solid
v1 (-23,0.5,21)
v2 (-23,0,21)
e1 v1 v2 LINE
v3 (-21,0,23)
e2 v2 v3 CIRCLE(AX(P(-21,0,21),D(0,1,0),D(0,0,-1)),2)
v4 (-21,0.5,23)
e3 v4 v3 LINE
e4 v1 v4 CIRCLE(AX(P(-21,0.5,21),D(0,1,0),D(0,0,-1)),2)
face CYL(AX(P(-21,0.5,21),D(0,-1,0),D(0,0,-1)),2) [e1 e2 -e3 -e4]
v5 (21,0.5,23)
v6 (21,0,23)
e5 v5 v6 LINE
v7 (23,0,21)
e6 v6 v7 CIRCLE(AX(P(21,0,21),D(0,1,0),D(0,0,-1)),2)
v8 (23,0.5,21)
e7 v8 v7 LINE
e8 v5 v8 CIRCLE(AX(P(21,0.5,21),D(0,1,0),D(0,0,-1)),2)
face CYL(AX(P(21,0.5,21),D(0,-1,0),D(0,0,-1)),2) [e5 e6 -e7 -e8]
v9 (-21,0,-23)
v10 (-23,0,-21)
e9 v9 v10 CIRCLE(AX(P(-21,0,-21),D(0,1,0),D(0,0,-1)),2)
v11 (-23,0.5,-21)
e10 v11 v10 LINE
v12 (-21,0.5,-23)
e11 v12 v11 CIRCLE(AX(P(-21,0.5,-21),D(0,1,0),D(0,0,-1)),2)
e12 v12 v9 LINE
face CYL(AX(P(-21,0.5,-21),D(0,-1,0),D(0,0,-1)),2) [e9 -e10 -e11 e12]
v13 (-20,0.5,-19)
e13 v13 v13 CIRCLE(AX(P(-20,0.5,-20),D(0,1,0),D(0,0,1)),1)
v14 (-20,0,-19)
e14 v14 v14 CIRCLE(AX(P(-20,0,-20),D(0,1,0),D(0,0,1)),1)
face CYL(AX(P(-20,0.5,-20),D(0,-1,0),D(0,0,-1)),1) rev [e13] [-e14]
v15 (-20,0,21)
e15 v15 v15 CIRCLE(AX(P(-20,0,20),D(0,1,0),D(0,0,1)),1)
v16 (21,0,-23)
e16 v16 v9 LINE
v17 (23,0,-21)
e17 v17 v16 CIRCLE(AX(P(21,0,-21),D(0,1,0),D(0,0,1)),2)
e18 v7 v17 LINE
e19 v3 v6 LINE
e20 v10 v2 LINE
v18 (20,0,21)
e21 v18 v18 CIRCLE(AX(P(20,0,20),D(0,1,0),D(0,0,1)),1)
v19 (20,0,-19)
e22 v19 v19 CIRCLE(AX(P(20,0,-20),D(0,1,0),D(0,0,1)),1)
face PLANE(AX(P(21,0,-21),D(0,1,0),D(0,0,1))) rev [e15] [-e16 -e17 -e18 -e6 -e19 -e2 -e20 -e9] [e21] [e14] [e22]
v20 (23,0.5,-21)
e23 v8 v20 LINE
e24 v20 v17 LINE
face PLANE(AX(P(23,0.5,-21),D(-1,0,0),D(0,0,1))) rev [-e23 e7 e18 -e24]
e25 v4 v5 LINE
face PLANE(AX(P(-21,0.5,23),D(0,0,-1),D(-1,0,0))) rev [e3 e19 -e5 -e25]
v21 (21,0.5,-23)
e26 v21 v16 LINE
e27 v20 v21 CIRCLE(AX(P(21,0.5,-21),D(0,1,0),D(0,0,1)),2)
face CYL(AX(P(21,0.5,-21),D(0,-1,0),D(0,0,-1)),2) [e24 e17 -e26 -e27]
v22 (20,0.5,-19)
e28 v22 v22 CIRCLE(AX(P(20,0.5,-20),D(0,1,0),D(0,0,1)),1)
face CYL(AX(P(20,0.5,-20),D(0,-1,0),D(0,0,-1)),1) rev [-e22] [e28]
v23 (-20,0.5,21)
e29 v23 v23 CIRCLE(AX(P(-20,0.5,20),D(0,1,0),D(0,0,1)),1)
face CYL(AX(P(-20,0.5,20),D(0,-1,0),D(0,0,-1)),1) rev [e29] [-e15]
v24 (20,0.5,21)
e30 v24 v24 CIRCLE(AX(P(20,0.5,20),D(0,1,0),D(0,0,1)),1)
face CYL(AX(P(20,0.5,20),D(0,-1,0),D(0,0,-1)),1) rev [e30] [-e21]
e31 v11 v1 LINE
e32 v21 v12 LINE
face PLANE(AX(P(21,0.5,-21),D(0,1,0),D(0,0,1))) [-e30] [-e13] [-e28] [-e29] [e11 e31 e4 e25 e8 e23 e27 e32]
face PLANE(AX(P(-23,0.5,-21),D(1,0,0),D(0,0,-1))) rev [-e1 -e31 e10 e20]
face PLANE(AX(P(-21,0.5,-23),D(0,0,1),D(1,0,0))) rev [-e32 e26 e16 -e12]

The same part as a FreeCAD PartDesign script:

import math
import FreeCAD as App
import Part
import Sketcher
from FreeCAD import Vector
Q = App.Units.Quantity

doc = App.newDocument("Part")
body = doc.addObject("PartDesign::Body", "Body")

# Sketch on XZ plane
sketch1 = doc.addObject("Sketcher::SketchObject", "Sketch")
body.addObject(sketch1)
sketch1.AttachmentSupport = (doc.XZ_Plane, [""])
sketch1.MapMode = "FlatFace"
sketch1.addGeometry(Part.LineSegment(Vector(21, -23, 0), Vector(-21, -23, 0)), False)
sketch1.addGeometry(Part.ArcOfCircle(Part.Circle(Vector(-21, -21, 0), Vector(0, 0, 1), 2), math.radians(-180), math.radians(-90)), False)
sketch1.addGeometry(Part.LineSegment(Vector(-23, -21, 0), Vector(-23, 21, 0)), False)
sketch1.addGeometry(Part.ArcOfCircle(Part.Circle(Vector(-21, 21, 0), Vector(0, 0, 1), 2), math.radians(90), math.radians(180)), False)
sketch1.addGeometry(Part.LineSegment(Vector(-21, 23, 0), Vector(21, 23, 0)), False)
sketch1.addGeometry(Part.ArcOfCircle(Part.Circle(Vector(21, 21, 0), Vector(0, 0, 1), 2), math.radians(0), math.radians(90)), False)
sketch1.addGeometry(Part.LineSegment(Vector(23, 21, 0), Vector(23, -21, 0)), False)
sketch1.addGeometry(Part.ArcOfCircle(Part.Circle(Vector(21, -21, 0), Vector(0, 0, 1), 2), math.radians(-90), math.radians(0)), False)
sketch1.addGeometry(Part.Circle(Vector(20, 20, 0), Vector(0, 0, 1), 1), False)
sketch1.addGeometry(Part.Circle(Vector(-20, 20, 0), Vector(0, 0, 1), 1), False)
sketch1.addGeometry(Part.Circle(Vector(20, -20, 0), Vector(0, 0, 1), 1), False)
sketch1.addGeometry(Part.Circle(Vector(-20, -20, 0), Vector(0, 0, 1), 1), False)
sketch1.addConstraint(Sketcher.Constraint("Tangent", 0, 2, 1, 2))
sketch1.addConstraint(Sketcher.Constraint("Tangent", 1, 1, 2, 1))
sketch1.addConstraint(Sketcher.Constraint("Tangent", 2, 2, 3, 2))
sketch1.addConstraint(Sketcher.Constraint("Tangent", 3, 1, 4, 1))
sketch1.addConstraint(Sketcher.Constraint("Tangent", 4, 2, 5, 2))
sketch1.addConstraint(Sketcher.Constraint("Tangent", 5, 1, 6, 1))
sketch1.addConstraint(Sketcher.Constraint("Tangent", 6, 2, 7, 2))
sketch1.addConstraint(Sketcher.Constraint("Tangent", 7, 1, 0, 1))
sketch1.addConstraint(Sketcher.Constraint("Horizontal", 0))
sketch1.addConstraint(Sketcher.Constraint("Vertical", 2))
sketch1.addConstraint(Sketcher.Constraint("Horizontal", 4))
sketch1.addConstraint(Sketcher.Constraint("Vertical", 6))
sketch1.addConstraint(Sketcher.Constraint("Equal", 1, 3))
sketch1.addConstraint(Sketcher.Constraint("Equal", 3, 5))
sketch1.addConstraint(Sketcher.Constraint("Equal", 5, 7))
sketch1.addConstraint(Sketcher.Constraint("Equal", 8, 9))
sketch1.addConstraint(Sketcher.Constraint("Equal", 9, 10))
sketch1.addConstraint(Sketcher.Constraint("Equal", 10, 11))
sketch1.addConstraint(Sketcher.Constraint("Symmetric", 1, 3, 5, 3, -1, 1))
sketch1.addConstraint(Sketcher.Constraint("Symmetric", 9, 3, 10, 3, -1, 1))
sketch1.addConstraint(Sketcher.Constraint("Symmetric", 8, 3, 11, 3, -1, 1))
sketch1.addConstraint(Sketcher.Constraint("Symmetric", 8, 3, 9, 3, -2))
sketch1.addConstraint(Sketcher.Constraint("Equal", 4, 2))
sketch1.addConstraint(Sketcher.Constraint("Diameter", 8, Q("2 mm")))
sketch1.addConstraint(Sketcher.Constraint("Radius", 1, Q("2 mm")))
sketch1.addConstraint(Sketcher.Constraint("DistanceX", 0, 2, 0, 1, Q("42 mm")))
sketch1.addConstraint(Sketcher.Constraint("DistanceX", -1, 1, 8, 3, Q("20 mm")))
sketch1.addConstraint(Sketcher.Constraint("DistanceY", -1, 1, 8, 3, Q("20 mm")))
pad1 = doc.addObject("PartDesign::Pad", "Pad")
body.addObject(pad1)
pad1.Profile = sketch1
pad1.Length = 0.5
pad1.Reversed = True

doc.recompute()
